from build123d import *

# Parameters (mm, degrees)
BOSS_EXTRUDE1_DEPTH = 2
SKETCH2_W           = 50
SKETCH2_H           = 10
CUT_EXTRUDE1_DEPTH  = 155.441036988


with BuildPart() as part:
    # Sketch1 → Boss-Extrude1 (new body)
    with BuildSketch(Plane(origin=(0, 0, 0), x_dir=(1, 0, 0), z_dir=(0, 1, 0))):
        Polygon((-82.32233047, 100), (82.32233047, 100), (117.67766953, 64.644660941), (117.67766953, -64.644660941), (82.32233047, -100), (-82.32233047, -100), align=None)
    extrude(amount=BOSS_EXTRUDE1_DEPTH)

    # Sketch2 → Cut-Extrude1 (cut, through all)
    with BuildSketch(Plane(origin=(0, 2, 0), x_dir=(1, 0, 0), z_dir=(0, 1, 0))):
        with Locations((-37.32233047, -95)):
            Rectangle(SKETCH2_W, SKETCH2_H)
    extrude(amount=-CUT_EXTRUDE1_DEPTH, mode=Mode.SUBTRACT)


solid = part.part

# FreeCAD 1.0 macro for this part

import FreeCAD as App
import Part
import Sketcher
from FreeCAD import Vector
Q = App.Units.Quantity

doc = App.newDocument("Part")
body = doc.addObject("PartDesign::Body", "Body")

sketch1 = body.newObject("Sketcher::SketchObject", "Sketch")
sketch1.AttachmentSupport = (doc.getObject("XZ_Plane"), [""])
sketch1.MapMode = "FlatFace"
sketch1.addGeometry(Part.LineSegment(Vector(82.32233, -100, 0), Vector(-82.32233, -100, 0)), False)
sketch1.addGeometry(Part.LineSegment(Vector(-82.32233, -100, 0), Vector(-82.32233, 100, 0)), False)
sketch1.addGeometry(Part.LineSegment(Vector(-82.32233, 100, 0), Vector(82.32233, 100, 0)), False)
sketch1.addGeometry(Part.LineSegment(Vector(82.32233, 100, 0), Vector(117.67767, 64.644661, 0)), False)
sketch1.addGeometry(Part.LineSegment(Vector(117.67767, 64.644661, 0), Vector(117.67767, -64.644661, 0)), False)
sketch1.addGeometry(Part.LineSegment(Vector(117.67767, -64.644661, 0), Vector(82.32233, -100, 0)), False)
sketch1.addConstraint(Sketcher.Constraint("Coincident", 0, 2, 1, 1))
sketch1.addConstraint(Sketcher.Constraint("Coincident", 1, 2, 2, 1))
sketch1.addConstraint(Sketcher.Constraint("Coincident", 2, 2, 3, 1))
sketch1.addConstraint(Sketcher.Constraint("Coincident", 3, 2, 4, 1))
sketch1.addConstraint(Sketcher.Constraint("Coincident", 4, 2, 5, 1))
sketch1.addConstraint(Sketcher.Constraint("Coincident", 5, 2, 0, 1))
sketch1.addConstraint(Sketcher.Constraint("Horizontal", 0))
sketch1.addConstraint(Sketcher.Constraint("Vertical", 1))
sketch1.addConstraint(Sketcher.Constraint("Horizontal", 2))
sketch1.addConstraint(Sketcher.Constraint("Vertical", 4))
sketch1.addConstraint(Sketcher.Constraint("Symmetric", 0, 2, 2, 2, -1, 1))
sketch1.addConstraint(Sketcher.Constraint("Perpendicular", 3, 5))
sketch1.addConstraint(Sketcher.Constraint("Vertical", 2, 2, 5, 2))
sketch1.addConstraint(Sketcher.Constraint("Equal", 3, 5))
sketch1.addConstraint(Sketcher.Constraint("DistanceY", 1, 1, 1, 2, Q("200 mm")))
sketch1.addConstraint(Sketcher.Constraint("Distance", 3, Q("50 mm")))
sketch1.addConstraint(Sketcher.Constraint("DistanceX", 1, 2, 3, 2, Q("200 mm")))
pad1 = body.newObject("PartDesign::Pad", "Pad")
pad1.Profile = sketch1
pad1.Length = 2
pad1.Reversed = True

sketch2 = body.newObject("Sketcher::SketchObject", "Sketch001")
sketch2.AttachmentSupport = (doc.getObject("XZ_Plane"), [""])
sketch2.MapMode = "FlatFace"
sketch2.AttachmentOffset = App.Placement(Vector(0, 0, -2), App.Rotation())
sketch2.addGeometry(Part.LineSegment(Vector(-62.32233, 90, 0), Vector(-62.32233, 100, 0)), False)
sketch2.addGeometry(Part.LineSegment(Vector(-62.32233, 100, 0), Vector(-12.32233, 100, 0)), False)
sketch2.addGeometry(Part.LineSegment(Vector(-12.32233, 100, 0), Vector(-12.32233, 90, 0)), False)
sketch2.addGeometry(Part.LineSegment(Vector(-12.32233, 90, 0), Vector(-62.32233, 90, 0)), False)
sketch2.addConstraint(Sketcher.Constraint("Coincident", 0, 2, 1, 1))
sketch2.addConstraint(Sketcher.Constraint("Coincident", 1, 2, 2, 1))
sketch2.addConstraint(Sketcher.Constraint("Coincident", 2, 2, 3, 1))
sketch2.addConstraint(Sketcher.Constraint("Coincident", 3, 2, 0, 1))
sketch2.addConstraint(Sketcher.Constraint("Vertical", 0))
sketch2.addConstraint(Sketcher.Constraint("Horizontal", 1))
sketch2.addConstraint(Sketcher.Constraint("Vertical", 2))
sketch2.addConstraint(Sketcher.Constraint("Horizontal", 3))
sketch2.addConstraint(Sketcher.Constraint("DistanceX", 1, 1, 1, 2, Q("50 mm")))
sketch2.addConstraint(Sketcher.Constraint("DistanceY", 0, 1, 0, 2, Q("10 mm")))
sketch2.addConstraint(Sketcher.Constraint("DistanceY", -1, 1, 0, 2, Q("100 mm")))
sketch2.addConstraint(Sketcher.Constraint("DistanceX", 0, 2, -1, 1, Q("62.32233 mm")))
pocket1 = body.newObject("PartDesign::Pocket", "Pocket")
pocket1.Profile = sketch2
pocket1.Type = "ThroughAll"
pocket1.Reversed = True

doc.recompute()
